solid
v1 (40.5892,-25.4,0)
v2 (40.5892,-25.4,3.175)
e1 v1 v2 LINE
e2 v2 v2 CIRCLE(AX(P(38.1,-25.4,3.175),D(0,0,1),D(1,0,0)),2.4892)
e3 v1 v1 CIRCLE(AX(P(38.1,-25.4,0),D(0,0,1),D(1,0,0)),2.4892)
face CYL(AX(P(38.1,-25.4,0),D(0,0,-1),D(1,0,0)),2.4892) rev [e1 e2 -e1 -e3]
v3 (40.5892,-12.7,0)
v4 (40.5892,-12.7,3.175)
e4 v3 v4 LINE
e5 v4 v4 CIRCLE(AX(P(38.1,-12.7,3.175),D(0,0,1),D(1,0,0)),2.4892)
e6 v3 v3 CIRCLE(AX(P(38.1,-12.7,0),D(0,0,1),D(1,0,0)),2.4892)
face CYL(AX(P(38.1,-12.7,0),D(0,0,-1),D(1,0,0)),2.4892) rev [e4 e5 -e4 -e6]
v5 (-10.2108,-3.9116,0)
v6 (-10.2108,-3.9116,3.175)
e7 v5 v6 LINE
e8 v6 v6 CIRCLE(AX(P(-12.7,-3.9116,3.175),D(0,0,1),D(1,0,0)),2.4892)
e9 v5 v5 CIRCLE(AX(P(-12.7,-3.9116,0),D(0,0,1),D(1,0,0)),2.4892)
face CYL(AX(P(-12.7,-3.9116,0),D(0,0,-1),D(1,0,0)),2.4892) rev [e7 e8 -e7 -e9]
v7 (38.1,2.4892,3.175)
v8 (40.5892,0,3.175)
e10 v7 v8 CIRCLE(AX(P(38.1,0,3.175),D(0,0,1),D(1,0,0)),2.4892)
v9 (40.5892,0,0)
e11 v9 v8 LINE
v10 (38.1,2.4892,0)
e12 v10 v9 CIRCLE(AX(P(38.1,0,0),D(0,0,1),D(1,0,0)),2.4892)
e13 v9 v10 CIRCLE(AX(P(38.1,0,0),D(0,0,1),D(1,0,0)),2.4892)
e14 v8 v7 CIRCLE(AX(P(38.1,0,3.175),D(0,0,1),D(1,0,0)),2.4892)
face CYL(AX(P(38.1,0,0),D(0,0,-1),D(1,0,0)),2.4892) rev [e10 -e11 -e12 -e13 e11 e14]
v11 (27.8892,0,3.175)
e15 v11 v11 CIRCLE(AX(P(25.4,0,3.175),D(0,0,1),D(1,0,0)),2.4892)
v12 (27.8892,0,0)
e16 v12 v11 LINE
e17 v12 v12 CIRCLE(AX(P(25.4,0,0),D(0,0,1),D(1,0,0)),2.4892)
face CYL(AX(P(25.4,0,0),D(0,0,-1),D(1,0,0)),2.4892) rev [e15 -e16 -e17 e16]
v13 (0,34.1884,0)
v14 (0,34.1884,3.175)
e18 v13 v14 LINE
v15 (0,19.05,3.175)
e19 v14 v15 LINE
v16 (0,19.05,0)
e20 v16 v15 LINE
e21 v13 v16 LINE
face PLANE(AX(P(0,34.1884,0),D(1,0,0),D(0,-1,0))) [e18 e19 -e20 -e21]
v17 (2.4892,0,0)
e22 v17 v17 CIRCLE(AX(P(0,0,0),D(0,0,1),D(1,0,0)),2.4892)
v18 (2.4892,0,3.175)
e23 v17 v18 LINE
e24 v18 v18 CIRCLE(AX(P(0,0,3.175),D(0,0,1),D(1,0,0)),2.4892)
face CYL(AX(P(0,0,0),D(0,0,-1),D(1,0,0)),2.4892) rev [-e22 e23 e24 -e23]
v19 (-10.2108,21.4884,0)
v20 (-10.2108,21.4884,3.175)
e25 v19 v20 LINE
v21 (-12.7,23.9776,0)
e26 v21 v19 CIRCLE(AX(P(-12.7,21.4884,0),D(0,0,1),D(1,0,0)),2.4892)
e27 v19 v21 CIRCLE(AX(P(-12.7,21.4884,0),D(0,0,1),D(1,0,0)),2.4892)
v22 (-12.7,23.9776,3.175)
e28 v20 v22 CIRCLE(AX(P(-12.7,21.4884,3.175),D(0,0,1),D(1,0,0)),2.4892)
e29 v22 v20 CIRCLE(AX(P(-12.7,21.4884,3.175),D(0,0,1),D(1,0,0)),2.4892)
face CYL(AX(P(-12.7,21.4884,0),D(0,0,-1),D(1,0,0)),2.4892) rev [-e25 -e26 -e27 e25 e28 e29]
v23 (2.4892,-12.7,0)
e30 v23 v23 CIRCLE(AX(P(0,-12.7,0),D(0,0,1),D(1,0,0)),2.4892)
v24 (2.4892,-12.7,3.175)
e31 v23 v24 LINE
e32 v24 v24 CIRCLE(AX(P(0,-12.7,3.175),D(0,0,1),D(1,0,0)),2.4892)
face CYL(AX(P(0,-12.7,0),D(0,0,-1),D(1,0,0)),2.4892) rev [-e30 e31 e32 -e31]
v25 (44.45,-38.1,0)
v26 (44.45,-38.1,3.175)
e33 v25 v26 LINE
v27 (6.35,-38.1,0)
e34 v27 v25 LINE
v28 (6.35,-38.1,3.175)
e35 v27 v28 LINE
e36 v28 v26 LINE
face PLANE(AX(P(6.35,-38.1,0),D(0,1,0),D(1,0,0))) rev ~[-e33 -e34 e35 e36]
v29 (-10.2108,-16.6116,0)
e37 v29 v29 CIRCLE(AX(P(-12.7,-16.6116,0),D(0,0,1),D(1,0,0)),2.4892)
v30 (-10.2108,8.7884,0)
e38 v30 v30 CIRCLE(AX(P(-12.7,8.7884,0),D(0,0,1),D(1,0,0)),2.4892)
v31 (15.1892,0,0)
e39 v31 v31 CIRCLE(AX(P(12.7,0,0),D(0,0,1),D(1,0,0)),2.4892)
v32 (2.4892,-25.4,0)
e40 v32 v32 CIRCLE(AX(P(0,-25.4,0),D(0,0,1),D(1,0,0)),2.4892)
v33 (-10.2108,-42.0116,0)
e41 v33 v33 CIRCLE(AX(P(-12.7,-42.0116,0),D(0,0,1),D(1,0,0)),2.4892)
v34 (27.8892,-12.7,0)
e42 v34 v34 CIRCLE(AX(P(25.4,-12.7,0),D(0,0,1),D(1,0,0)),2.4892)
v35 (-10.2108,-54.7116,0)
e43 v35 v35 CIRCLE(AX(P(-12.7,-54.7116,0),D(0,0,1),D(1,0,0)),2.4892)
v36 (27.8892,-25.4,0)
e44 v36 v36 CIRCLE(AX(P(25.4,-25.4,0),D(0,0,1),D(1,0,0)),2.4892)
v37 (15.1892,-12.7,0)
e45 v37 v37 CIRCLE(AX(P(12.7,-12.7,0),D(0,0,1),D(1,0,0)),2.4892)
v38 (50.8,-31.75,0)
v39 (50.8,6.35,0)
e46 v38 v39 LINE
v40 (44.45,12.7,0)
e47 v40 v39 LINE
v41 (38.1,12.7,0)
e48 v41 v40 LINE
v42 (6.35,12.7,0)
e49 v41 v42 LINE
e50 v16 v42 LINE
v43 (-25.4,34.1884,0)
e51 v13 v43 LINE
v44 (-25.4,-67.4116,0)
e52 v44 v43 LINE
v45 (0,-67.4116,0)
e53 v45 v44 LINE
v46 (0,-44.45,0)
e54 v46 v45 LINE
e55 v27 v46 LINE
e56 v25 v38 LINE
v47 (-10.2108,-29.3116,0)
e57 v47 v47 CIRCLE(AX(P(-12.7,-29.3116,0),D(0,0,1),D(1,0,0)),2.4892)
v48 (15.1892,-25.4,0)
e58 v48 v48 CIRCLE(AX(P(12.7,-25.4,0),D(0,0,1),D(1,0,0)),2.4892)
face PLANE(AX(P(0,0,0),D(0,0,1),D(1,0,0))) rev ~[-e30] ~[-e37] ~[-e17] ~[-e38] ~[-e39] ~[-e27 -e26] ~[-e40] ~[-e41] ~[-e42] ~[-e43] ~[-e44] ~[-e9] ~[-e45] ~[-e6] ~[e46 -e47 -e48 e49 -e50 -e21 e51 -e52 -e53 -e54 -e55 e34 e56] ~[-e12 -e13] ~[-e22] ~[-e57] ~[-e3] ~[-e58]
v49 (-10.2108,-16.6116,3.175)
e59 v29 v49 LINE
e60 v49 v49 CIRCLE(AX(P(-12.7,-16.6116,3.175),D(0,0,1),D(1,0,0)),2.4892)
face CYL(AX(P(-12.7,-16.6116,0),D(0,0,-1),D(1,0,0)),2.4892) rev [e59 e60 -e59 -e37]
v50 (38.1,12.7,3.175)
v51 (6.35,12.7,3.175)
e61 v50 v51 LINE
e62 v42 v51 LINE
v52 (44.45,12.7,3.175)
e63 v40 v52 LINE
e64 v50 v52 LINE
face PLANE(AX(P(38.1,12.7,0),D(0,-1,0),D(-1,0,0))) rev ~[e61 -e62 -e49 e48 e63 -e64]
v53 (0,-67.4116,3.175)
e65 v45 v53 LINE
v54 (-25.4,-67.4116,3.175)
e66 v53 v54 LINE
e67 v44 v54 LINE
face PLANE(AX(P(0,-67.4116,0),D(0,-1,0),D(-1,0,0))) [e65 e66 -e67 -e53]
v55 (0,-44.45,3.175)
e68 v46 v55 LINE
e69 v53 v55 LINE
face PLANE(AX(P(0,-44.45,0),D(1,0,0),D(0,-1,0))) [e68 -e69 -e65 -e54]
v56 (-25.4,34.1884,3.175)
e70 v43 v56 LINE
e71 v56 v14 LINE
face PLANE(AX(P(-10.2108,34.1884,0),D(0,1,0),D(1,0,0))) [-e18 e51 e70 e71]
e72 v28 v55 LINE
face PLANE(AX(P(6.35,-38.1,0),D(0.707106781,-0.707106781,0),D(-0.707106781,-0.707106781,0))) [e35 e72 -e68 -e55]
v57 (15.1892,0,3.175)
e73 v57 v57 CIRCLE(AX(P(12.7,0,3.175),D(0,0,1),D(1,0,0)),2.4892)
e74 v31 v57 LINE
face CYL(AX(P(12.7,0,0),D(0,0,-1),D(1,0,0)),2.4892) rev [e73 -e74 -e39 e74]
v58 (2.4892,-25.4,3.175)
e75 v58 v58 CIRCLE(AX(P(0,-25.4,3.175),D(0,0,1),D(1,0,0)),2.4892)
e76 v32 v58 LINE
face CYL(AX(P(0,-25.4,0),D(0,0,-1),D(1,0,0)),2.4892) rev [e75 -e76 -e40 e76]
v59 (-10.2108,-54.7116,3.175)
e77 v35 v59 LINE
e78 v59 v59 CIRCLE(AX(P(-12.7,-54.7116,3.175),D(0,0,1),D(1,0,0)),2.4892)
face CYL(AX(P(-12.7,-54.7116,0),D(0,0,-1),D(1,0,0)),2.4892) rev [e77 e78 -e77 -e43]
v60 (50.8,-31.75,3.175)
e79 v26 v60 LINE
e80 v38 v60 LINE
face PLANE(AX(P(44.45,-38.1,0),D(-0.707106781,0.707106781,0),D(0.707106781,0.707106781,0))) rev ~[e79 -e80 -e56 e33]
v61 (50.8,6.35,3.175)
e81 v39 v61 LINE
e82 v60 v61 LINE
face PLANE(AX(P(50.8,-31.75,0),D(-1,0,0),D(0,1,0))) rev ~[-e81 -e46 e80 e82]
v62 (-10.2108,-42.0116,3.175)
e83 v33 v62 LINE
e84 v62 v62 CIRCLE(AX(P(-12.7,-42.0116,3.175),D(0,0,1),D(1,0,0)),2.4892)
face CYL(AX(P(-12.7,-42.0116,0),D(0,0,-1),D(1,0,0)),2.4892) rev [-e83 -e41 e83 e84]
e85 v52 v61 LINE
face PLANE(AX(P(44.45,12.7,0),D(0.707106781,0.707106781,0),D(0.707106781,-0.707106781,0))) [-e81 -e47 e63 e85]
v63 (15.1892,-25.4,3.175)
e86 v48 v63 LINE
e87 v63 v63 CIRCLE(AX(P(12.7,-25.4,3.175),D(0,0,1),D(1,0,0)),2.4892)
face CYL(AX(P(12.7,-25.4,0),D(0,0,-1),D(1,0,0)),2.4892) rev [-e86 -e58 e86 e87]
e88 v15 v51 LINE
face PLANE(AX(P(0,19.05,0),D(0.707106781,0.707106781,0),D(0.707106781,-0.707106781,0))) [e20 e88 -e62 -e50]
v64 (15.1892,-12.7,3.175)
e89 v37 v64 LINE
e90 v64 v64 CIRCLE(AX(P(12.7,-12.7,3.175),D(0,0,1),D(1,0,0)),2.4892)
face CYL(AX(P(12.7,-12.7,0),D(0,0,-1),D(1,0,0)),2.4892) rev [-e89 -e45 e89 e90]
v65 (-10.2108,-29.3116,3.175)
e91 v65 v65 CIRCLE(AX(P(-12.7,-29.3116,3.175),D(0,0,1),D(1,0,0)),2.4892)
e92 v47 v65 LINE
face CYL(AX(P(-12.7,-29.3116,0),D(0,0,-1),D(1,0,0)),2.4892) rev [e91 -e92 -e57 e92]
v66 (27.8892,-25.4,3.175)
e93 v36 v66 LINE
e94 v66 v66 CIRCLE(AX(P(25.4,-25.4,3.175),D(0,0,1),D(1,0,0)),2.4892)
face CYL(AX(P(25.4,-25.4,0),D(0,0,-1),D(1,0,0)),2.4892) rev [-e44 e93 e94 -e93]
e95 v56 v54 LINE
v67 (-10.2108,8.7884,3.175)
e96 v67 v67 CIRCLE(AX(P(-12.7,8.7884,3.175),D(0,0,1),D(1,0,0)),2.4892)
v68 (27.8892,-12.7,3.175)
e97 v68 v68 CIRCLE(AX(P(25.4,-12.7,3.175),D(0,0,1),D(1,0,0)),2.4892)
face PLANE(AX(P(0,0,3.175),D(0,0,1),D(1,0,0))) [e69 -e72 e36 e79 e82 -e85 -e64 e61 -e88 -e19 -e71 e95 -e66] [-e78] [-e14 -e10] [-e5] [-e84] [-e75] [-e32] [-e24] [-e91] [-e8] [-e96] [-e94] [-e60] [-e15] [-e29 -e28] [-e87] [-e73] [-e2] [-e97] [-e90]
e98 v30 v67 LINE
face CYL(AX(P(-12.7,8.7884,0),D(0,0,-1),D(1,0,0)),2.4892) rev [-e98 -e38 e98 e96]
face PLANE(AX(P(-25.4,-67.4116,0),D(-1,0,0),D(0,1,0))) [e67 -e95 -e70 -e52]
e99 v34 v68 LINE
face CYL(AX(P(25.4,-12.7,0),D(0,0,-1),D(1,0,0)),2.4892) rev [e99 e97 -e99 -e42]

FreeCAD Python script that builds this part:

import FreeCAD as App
import Part
import Sketcher
Q = App.Units.Quantity


def add_polygon(sketch, points):
    """Adds a closed chain of lines whose ends are joined by coincident constraints."""
    first, n = sketch.GeometryCount, len(points)
    for a, b in zip(points, points[1:] + points[:1]):
        sketch.addGeometry(Part.LineSegment(App.Vector(*a, 0), App.Vector(*b, 0)), False)
    for i in range(n):
        sketch.addConstraint(Sketcher.Constraint("Coincident", first + i, 2, first + (i + 1) % n, 1))

doc = App.newDocument("Part")
params = doc.addObject("Spreadsheet::Sheet", "Params")
for row, (alias, value) in enumerate([
    ("sketch1_width", "1 in"),
    ("sketch1_diameter", "0.196 in"),
    ("sketch1_width2", "0.25 in"),
    ("pad1_length", "0.125 in"),
], start=1):
    params.set(f"A{row}", alias)
    params.set(f"B{row}", "=" + value)
    params.setAlias(f"B{row}", alias)

body = doc.addObject("PartDesign::Body", "Body")

# Sketch on XY plane
sketch1 = body.newObject("Sketcher::SketchObject", "Sketch")
sketch1.AttachmentSupport = (doc.getObject("XY_Plane"), [""])
sketch1.MapMode = "FlatFace"
add_polygon(sketch1, [(0, 34.2), (-25.4, 34.2), (-25.4, -67.4), (0, -67.4), (0, -44.5), (6.3, -38.1), (44.5, -38.1), (50.8, -31.8), (50.8, 6.3), (44.5, 12.7), (38.1, 12.7), (6.3, 12.7), (0, 19.1)])  # lines 0-12
sketch1.addGeometry(Part.Circle(App.Vector(-12.7, -54.7, 0), App.Vector(0, 0, 1), 2.5), False)  # 13
sketch1.addGeometry(Part.Circle(App.Vector(-12.7, -42, 0), App.Vector(0, 0, 1), 2.5), False)  # 14
sketch1.addGeometry(Part.Circle(App.Vector(-12.7, -29.3, 0), App.Vector(0, 0, 1), 2.5), False)  # 15
sketch1.addGeometry(Part.Circle(App.Vector(-12.7, -16.6, 0), App.Vector(0, 0, 1), 2.5), False)  # 16
sketch1.addGeometry(Part.Circle(App.Vector(0, -25.4, 0), App.Vector(0, 0, 1), 2.5), False)  # 17
sketch1.addGeometry(Part.Circle(App.Vector(0, -12.7, 0), App.Vector(0, 0, 1), 2.5), False)  # 18
sketch1.addGeometry(Part.Circle(App.Vector(12.7, -25.4, 0), App.Vector(0, 0, 1), 2.5), False)  # 19
sketch1.addGeometry(Part.Circle(App.Vector(25.4, -25.4, 0), App.Vector(0, 0, 1), 2.5), False)  # 20
sketch1.addGeometry(Part.Circle(App.Vector(12.7, -12.7, 0), App.Vector(0, 0, 1), 2.5), False)  # 21
sketch1.addGeometry(Part.Circle(App.Vector(25.4, -12.7, 0), App.Vector(0, 0, 1), 2.5), False)  # 22
sketch1.addGeometry(Part.Circle(App.Vector(38.1, -25.4, 0), App.Vector(0, 0, 1), 2.5), False)  # 23
sketch1.addGeometry(Part.Circle(App.Vector(38.1, -12.7, 0), App.Vector(0, 0, 1), 2.5), False)  # 24
sketch1.addGeometry(Part.Circle(App.Vector(-12.7, -3.9, 0), App.Vector(0, 0, 1), 2.5), False)  # 25
sketch1.addGeometry(Part.Circle(App.Vector(-12.7, 8.8, 0), App.Vector(0, 0, 1), 2.5), False)  # 26
sketch1.addGeometry(Part.Circle(App.Vector(0, 0, 0), App.Vector(0, 0, 1), 2.5), False)  # 27
sketch1.addGeometry(Part.Circle(App.Vector(-12.7, 21.5, 0), App.Vector(0, 0, 1), 2.5), False)  # 28
sketch1.addGeometry(Part.Circle(App.Vector(12.7, 0, 0), App.Vector(0, 0, 1), 2.5), False)  # 29
sketch1.addGeometry(Part.Circle(App.Vector(25.4, 0, 0), App.Vector(0, 0, 1), 2.5), False)  # 30
sketch1.addGeometry(Part.Circle(App.Vector(38.1, 0, 0), App.Vector(0, 0, 1), 2.5), False)  # 31
sketch1.addConstraint(Sketcher.Constraint("Horizontal", 0))
sketch1.addConstraint(Sketcher.Constraint("Vertical", 1))
sketch1.addConstraint(Sketcher.Constraint("Horizontal", 2))
sketch1.addConstraint(Sketcher.Constraint("Vertical", 3))
sketch1.addConstraint(Sketcher.Constraint("Horizontal", 5))
sketch1.addConstraint(Sketcher.Constraint("Vertical", 7))
sketch1.addConstraint(Sketcher.Constraint("Horizontal", 9))
sketch1.addConstraint(Sketcher.Constraint("Horizontal", 10))
sketch1.addConstraint(Sketcher.Constraint("Vertical", 12))
sketch1.addConstraint(Sketcher.Constraint("Coincident", 27, 3, -1, 1))
sketch1.addConstraint(Sketcher.Constraint("Equal", 13, 14))
sketch1.addConstraint(Sketcher.Constraint("Equal", 14, 15))
sketch1.addConstraint(Sketcher.Constraint("Equal", 15, 16))
sketch1.addConstraint(Sketcher.Constraint("Equal", 16, 17))
sketch1.addConstraint(Sketcher.Constraint("Equal", 17, 18))
sketch1.addConstraint(Sketcher.Constraint("Equal", 18, 19))
sketch1.addConstraint(Sketcher.Constraint("Equal", 19, 20))
sketch1.addConstraint(Sketcher.Constraint("Equal", 20, 21))
sketch1.addConstraint(Sketcher.Constraint("Equal", 21, 22))
sketch1.addConstraint(Sketcher.Constraint("Equal", 22, 23))
sketch1.addConstraint(Sketcher.Constraint("Equal", 23, 24))
sketch1.addConstraint(Sketcher.Constraint("Equal", 24, 25))
sketch1.addConstraint(Sketcher.Constraint("Equal", 25, 26))
sketch1.addConstraint(Sketcher.Constraint("Equal", 26, 27))
sketch1.addConstraint(Sketcher.Constraint("Equal", 27, 28))
sketch1.addConstraint(Sketcher.Constraint("Equal", 28, 29))
sketch1.addConstraint(Sketcher.Constraint("Equal", 29, 30))
sketch1.addConstraint(Sketcher.Constraint("Equal", 30, 31))
sketch1.addConstraint(Sketcher.Constraint("PointOnObject", 17, 3, -2))
sketch1.addConstraint(Sketcher.Constraint("PointOnObject", 18, 3, -2))
sketch1.addConstraint(Sketcher.Constraint("PointOnObject", 29, 3, -1))
sketch1.addConstraint(Sketcher.Constraint("PointOnObject", 30, 3, -1))
sketch1.addConstraint(Sketcher.Constraint("PointOnObject", 31, 3, -1))
sketch1.addConstraint(Sketcher.Constraint("PointOnObject", 2, 2, -2))
sketch1.addConstraint(Sketcher.Constraint("PointOnObject", 11, 2, -2))
sketch1.addConstraint(Sketcher.Constraint("Parallel", 4, 6))
sketch1.addConstraint(Sketcher.Constraint("Perpendicular", 6, 8))
sketch1.addConstraint(Sketcher.Constraint("Parallel", 8, 11))
sketch1.addConstraint(Sketcher.Constraint("Horizontal", 17, 3, 19, 3))
sketch1.addConstraint(Sketcher.Constraint("Horizontal", 19, 3, 20, 3))
sketch1.addConstraint(Sketcher.Constraint("Horizontal", 18, 3, 21, 3))
sketch1.addConstraint(Sketcher.Constraint("Horizontal", 21, 3, 22, 3))
sketch1.addConstraint(Sketcher.Constraint("Horizontal", 20, 3, 23, 3))
sketch1.addConstraint(Sketcher.Constraint("Horizontal", 22, 3, 24, 3))
sketch1.addConstraint(Sketcher.Constraint("Vertical", 13, 3, 14, 3))
sketch1.addConstraint(Sketcher.Constraint("Vertical", 14, 3, 15, 3))
sketch1.addConstraint(Sketcher.Constraint("Vertical", 15, 3, 16, 3))
sketch1.addConstraint(Sketcher.Constraint("Vertical", 19, 3, 21, 3))
sketch1.addConstraint(Sketcher.Constraint("Vertical", 20, 3, 22, 3))
sketch1.addConstraint(Sketcher.Constraint("Vertical", 23, 3, 24, 3))
sketch1.addConstraint(Sketcher.Constraint("Vertical", 16, 3, 25, 3))
sketch1.addConstraint(Sketcher.Constraint("Vertical", 25, 3, 26, 3))
sketch1.addConstraint(Sketcher.Constraint("Vertical", 26, 3, 28, 3))
sketch1.addConstraint(Sketcher.Constraint("Vertical", 21, 3, 29, 3))
sketch1.addConstraint(Sketcher.Constraint("Vertical", 22, 3, 30, 3))
sketch1.addConstraint(Sketcher.Constraint("Vertical", 24, 3, 31, 3))
sketch1.addConstraint(Sketcher.Constraint("Vertical", 5, 2, 8, 2))
sketch1.addConstraint(Sketcher.Constraint("Vertical", 31, 3, 9, 2))
sketch1.addConstraint(Sketcher.Constraint("Vertical", 4, 2, 10, 2))
sketch1.addConstraint(Sketcher.Constraint("Equal", 5, 7))
sketch1.addConstraint(Sketcher.Constraint("Equal", 4, 6))
sketch1.addConstraint(Sketcher.Constraint("Equal", 6, 8))
sketch1.addConstraint(Sketcher.Constraint("DistanceX", 0, 2, 0, 1, Q("1 in")))
sketch1.addConstraint(Sketcher.Constraint("Diameter", 13, Q("0.196 in")))
sketch1.addConstraint(Sketcher.Constraint("DistanceY", 17, 3, -1, 1, Q("1 in")))
sketch1.addConstraint(Sketcher.Constraint("DistanceX", -1, 1, 20, 3, Q("1 in")))
sketch1.addConstraint(Sketcher.Constraint("DistanceX", -1, 1, 6, 2, Q("2 in")))
sketch1.addConstraint(Sketcher.Constraint("DistanceY", 13, 3, 15, 3, Q("1 in")))
sketch1.addConstraint(Sketcher.Constraint("DistanceY", 14, 3, 16, 3, Q("1 in")))
sketch1.addConstraint(Sketcher.Constraint("DistanceX", 15, 3, 19, 3, Q("1 in")))
sketch1.addConstraint(Sketcher.Constraint("DistanceX", 19, 3, 23, 3, Q("1 in")))
sketch1.addConstraint(Sketcher.Constraint("DistanceY", 15, 3, 25, 3, Q("1 in")))
sketch1.addConstraint(Sketcher.Constraint("DistanceY", 16, 3, 26, 3, Q("1 in")))
sketch1.addConstraint(Sketcher.Constraint("DistanceY", 25, 3, 28, 3, Q("1 in")))
sketch1.addConstraint(Sketcher.Constraint("DistanceY", 26, 3, 0, 2, Q("1 in")))
sketch1.addConstraint(Sketcher.Constraint("DistanceY", 1, 2, 14, 3, Q("1 in")))
sketch1.addConstraint(Sketcher.Constraint("DistanceY", 5, 2, 24, 3, Q("1 in")))
sketch1.addConstraint(Sketcher.Constraint("DistanceX", 9, 2, 9, 1, Q("0.25 in")))
sketch1.addConstraint(Sketcher.Constraint("DistanceX", 13, 3, -1, 1, Q("0.5 in")))
sketch1.addConstraint(Sketcher.Constraint("DistanceY", 18, 3, -1, 1, Q("0.5 in")))
sketch1.addConstraint(Sketcher.Constraint("DistanceY", 13, 3, 14, 3, Q("0.5 in")))
sketch1.addConstraint(Sketcher.Constraint("DistanceY", 16, 3, -1, 1, Q("0.654 in")))
sketch1.setExpression("Constraints[75]", "Params.sketch1_width")
sketch1.setExpression("Constraints[76]", "Params.sketch1_diameter")
sketch1.setExpression("Constraints[90]", "Params.sketch1_width2")
pad1 = body.newObject("PartDesign::Pad", "Pad")
pad1.Profile = sketch1
pad1.setExpression("Length", "Params.pad1_length")

doc.recompute()
